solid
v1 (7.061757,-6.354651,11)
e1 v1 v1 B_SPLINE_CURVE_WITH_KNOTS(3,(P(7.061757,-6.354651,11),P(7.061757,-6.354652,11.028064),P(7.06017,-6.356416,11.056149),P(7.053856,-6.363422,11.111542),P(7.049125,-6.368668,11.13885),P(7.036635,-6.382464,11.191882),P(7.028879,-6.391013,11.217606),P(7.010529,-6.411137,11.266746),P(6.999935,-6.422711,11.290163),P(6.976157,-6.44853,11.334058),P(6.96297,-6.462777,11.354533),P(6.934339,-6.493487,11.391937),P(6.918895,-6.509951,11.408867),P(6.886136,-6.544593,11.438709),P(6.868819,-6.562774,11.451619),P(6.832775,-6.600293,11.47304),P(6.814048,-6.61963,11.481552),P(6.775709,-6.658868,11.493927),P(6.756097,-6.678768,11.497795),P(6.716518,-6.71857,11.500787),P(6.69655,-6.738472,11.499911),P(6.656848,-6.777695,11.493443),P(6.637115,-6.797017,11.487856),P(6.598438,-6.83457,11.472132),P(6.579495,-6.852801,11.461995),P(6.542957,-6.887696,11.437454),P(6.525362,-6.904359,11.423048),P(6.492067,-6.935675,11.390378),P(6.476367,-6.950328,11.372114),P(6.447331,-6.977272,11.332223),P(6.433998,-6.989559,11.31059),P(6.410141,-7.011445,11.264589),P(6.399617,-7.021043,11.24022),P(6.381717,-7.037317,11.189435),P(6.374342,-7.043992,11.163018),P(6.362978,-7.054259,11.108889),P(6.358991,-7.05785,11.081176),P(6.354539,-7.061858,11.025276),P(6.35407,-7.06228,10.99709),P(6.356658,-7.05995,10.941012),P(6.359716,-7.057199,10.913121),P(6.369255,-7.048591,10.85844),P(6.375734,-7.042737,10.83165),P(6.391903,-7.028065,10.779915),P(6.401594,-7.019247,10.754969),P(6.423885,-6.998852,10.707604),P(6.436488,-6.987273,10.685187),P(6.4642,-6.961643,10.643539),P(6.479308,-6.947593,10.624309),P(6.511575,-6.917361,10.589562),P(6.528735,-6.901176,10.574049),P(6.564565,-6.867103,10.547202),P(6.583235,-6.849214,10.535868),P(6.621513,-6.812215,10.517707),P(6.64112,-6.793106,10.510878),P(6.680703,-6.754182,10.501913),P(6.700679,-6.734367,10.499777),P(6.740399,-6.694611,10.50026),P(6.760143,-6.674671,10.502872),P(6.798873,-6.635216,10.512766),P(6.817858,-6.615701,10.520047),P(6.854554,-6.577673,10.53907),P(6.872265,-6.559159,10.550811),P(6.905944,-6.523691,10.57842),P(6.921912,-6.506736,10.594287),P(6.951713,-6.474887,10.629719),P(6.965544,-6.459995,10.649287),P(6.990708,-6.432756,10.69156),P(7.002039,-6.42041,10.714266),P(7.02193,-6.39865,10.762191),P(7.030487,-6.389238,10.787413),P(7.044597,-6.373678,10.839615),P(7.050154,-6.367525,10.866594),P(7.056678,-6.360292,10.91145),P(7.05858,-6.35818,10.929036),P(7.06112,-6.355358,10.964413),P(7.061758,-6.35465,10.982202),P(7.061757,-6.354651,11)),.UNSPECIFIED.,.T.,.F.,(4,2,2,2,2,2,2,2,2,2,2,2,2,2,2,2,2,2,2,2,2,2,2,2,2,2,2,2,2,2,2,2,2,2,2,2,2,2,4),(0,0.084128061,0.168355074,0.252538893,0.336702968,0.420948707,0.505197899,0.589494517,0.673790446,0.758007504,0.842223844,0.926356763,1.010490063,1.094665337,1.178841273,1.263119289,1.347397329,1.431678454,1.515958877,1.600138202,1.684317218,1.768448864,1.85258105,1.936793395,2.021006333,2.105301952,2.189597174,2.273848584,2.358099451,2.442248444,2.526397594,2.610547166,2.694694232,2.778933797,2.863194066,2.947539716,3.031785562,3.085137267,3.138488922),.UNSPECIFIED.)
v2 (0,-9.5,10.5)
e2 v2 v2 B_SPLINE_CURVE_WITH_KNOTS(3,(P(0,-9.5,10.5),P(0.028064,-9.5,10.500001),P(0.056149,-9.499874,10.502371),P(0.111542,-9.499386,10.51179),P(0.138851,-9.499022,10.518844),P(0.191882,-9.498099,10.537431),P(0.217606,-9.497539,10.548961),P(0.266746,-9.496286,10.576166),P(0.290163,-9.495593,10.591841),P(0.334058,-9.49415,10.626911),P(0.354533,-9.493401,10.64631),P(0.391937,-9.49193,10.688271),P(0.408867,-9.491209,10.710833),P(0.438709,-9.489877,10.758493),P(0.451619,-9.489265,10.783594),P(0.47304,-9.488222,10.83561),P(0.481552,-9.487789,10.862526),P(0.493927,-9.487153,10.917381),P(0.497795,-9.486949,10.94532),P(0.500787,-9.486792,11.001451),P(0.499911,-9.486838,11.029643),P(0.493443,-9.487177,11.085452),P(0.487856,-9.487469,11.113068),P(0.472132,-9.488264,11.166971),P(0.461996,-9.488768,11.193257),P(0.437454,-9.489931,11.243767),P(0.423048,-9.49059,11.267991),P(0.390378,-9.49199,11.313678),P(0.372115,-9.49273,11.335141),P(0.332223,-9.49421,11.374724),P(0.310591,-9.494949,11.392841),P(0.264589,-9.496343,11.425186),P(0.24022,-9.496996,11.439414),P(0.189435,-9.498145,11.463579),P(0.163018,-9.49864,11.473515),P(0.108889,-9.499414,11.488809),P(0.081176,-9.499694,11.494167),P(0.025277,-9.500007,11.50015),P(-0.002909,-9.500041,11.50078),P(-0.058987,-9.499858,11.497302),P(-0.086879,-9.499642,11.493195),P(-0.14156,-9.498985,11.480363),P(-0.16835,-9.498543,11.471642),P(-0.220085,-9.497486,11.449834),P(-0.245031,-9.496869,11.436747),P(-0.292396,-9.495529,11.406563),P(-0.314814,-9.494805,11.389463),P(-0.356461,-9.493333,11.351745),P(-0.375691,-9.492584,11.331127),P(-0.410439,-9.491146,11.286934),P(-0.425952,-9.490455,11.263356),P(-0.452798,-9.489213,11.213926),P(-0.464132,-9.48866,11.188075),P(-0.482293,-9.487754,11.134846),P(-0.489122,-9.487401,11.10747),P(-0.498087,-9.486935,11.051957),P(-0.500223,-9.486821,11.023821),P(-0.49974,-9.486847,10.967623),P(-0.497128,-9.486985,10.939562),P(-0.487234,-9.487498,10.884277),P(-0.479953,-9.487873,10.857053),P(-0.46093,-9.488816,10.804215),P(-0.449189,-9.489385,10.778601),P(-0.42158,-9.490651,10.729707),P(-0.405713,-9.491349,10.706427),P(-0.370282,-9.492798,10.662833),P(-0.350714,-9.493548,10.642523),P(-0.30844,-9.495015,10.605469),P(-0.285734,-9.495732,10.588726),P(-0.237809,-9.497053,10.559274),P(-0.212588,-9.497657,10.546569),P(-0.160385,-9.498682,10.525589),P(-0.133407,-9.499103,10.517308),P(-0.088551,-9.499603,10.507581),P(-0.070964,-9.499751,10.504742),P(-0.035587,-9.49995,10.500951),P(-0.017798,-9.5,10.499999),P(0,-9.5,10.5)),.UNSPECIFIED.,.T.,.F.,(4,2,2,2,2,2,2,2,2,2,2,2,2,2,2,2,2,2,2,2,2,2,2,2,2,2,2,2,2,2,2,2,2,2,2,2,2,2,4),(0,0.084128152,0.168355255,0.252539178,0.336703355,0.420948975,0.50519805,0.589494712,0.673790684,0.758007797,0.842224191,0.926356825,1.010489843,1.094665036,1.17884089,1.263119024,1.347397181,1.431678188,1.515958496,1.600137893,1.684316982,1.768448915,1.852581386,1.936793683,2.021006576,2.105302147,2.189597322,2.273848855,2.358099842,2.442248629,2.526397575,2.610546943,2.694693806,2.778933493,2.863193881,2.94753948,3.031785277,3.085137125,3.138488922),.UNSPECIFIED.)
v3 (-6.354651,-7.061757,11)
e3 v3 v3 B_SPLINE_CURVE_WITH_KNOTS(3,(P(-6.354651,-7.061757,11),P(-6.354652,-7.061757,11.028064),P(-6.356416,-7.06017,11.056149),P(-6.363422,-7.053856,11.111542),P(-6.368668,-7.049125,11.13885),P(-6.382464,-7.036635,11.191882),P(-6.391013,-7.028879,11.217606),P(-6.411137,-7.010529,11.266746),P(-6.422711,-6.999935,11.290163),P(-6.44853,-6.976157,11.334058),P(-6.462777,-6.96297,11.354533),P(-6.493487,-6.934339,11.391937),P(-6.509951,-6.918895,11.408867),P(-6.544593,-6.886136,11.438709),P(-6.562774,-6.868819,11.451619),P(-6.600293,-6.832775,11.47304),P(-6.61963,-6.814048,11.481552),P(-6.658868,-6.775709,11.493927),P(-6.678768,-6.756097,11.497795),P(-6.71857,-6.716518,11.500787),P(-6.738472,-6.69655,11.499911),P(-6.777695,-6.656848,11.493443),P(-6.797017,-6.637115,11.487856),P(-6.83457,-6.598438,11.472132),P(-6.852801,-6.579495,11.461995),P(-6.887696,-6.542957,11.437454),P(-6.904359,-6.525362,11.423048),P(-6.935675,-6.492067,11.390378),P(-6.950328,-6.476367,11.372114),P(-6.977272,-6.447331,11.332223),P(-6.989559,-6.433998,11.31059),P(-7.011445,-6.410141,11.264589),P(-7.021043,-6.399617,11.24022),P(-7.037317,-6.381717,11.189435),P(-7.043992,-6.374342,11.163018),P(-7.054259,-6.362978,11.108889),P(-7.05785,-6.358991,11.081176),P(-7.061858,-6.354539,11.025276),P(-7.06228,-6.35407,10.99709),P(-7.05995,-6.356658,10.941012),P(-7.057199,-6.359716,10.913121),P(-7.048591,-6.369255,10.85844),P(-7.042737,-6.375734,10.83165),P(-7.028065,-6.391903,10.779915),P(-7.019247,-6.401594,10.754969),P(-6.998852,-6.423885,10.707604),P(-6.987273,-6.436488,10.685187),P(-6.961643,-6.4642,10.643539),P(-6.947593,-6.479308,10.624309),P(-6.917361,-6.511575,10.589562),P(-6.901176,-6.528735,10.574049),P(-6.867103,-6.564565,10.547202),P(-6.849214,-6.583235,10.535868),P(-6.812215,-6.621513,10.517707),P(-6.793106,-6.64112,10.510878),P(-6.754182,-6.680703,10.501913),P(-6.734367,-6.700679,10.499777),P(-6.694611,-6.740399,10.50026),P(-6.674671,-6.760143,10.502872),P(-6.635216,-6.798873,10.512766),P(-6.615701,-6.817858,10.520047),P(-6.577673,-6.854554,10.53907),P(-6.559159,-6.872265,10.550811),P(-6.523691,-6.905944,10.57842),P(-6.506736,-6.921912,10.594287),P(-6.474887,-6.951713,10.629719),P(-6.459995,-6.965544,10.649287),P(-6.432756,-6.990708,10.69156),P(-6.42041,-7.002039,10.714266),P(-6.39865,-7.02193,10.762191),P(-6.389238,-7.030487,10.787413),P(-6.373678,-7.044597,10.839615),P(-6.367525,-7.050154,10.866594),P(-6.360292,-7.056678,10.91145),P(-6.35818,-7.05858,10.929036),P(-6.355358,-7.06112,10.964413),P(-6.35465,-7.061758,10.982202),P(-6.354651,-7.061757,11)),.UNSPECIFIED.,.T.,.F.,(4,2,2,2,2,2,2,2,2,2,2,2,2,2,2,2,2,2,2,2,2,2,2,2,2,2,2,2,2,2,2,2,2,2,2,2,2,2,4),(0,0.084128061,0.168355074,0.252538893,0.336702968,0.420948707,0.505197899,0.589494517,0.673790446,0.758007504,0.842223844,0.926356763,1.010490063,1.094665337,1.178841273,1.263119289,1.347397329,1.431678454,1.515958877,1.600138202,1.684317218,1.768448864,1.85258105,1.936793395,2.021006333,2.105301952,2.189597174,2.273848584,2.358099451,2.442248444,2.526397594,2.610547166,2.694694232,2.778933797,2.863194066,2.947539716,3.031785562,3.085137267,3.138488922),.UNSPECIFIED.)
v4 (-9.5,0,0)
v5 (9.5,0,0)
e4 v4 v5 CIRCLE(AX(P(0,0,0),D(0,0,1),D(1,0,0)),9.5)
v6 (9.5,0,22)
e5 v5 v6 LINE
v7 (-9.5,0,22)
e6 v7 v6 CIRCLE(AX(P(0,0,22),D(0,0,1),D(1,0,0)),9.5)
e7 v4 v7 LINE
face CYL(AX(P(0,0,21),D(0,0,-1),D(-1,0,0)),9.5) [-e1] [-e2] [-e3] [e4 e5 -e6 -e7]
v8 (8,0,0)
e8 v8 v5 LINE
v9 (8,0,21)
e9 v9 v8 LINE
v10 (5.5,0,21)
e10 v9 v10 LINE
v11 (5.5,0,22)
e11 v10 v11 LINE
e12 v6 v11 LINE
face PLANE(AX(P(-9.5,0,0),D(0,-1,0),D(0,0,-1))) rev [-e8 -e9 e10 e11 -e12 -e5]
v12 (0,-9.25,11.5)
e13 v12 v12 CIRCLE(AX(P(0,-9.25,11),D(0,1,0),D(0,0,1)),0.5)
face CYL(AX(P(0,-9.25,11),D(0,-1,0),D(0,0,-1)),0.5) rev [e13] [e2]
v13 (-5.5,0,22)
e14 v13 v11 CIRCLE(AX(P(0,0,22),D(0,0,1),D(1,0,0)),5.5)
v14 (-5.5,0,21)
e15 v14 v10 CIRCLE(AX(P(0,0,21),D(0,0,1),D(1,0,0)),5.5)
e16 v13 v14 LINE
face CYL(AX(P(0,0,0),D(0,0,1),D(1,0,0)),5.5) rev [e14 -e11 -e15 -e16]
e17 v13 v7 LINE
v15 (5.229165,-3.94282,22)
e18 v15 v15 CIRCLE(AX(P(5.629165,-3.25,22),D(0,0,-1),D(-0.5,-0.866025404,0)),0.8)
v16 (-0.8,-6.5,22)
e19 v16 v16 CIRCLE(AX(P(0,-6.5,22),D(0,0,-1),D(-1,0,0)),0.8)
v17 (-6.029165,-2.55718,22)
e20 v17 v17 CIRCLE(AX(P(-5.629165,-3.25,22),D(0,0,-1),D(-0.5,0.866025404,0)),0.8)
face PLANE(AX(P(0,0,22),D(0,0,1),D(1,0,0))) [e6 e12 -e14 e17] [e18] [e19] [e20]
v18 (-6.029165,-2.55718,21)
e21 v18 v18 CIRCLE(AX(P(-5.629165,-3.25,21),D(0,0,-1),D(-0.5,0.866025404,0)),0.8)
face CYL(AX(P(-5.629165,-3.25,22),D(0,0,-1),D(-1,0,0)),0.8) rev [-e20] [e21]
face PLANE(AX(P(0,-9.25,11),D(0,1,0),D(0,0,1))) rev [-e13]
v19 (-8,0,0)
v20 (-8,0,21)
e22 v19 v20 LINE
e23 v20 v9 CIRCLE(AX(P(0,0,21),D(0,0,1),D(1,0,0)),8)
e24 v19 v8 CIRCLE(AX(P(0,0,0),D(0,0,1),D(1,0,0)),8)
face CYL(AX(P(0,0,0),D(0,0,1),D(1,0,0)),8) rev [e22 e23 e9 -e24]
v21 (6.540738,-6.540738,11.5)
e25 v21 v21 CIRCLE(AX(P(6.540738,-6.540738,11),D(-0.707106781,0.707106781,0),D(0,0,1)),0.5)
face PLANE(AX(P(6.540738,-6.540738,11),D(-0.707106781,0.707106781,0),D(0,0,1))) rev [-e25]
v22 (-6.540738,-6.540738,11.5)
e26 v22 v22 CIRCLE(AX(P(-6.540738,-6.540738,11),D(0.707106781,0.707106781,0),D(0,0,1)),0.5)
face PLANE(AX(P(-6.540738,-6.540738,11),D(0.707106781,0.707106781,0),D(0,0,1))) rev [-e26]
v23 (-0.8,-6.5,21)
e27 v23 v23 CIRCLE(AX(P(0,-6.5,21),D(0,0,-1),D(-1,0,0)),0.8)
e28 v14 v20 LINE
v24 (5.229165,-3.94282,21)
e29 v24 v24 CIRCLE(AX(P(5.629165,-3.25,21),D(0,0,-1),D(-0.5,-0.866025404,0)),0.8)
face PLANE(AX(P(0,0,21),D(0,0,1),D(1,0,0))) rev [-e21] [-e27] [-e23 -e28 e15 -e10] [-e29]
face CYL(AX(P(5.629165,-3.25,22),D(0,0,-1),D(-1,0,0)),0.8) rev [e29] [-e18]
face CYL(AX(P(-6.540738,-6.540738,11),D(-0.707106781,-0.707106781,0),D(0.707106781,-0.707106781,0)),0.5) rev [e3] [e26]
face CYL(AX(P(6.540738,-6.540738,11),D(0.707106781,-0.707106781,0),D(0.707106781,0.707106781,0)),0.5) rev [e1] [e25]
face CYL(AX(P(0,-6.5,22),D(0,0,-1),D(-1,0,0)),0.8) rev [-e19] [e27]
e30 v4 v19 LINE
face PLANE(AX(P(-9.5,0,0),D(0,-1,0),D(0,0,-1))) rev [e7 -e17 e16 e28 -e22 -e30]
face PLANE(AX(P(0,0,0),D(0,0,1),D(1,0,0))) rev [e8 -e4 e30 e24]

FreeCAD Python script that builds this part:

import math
import FreeCAD as App
import Part
import Sketcher


def add_polygon(sketch, points):
    """Adds a closed chain of lines whose ends are joined by coincident constraints."""
    first, n = sketch.GeometryCount, len(points)
    for a, b in zip(points, points[1:] + points[:1]):
        sketch.addGeometry(Part.LineSegment(App.Vector(*a, 0), App.Vector(*b, 0)), False)
    for i in range(n):
        sketch.addConstraint(Sketcher.Constraint("Coincident", first + i, 2, first + (i + 1) % n, 1))

doc = App.newDocument("Part")
params = doc.addObject("Spreadsheet::Sheet", "Params")
for row, (alias, value) in enumerate([
    ("sketch1_diameter", "19 mm"),
    ("pad1_length", "21 mm"),
    ("sketch2_diameter", "16 mm"),
    ("sketch3_width", "19 mm"),
    ("sketch3_height", "9.5 mm"),
    ("sketch4_radius", "9.5 mm"),
    ("pad2_length", "1 mm"),
    ("sketch5_diameter", "1 mm"),
    ("pocket3_length", "0.5 mm"),
    ("sketch6_diameter", "11 mm"),
    ("sketch7_diameter", "1.6 mm"),
], start=1):
    params.set(f"A{row}", alias)
    params.set(f"B{row}", "=" + value)
    params.setAlias(f"B{row}", alias)

body = doc.addObject("PartDesign::Body", "Body")

sketch1 = body.newObject("Sketcher::SketchObject", "Sketch")
sketch1.AttachmentSupport = (doc.getObject("XY_Plane"), [""])
sketch1.MapMode = "FlatFace"
sketch1.addGeometry(Part.Circle(App.Vector(0, 0, 0), App.Vector(0, 0, 1), 10), False)
sketch1.addConstraint(Sketcher.Constraint("Coincident", 0, 3, -1, 1))
sketch1.addConstraint(Sketcher.Constraint("Diameter", 0, 19.0))
sketch1.setExpression("Constraints[1]", "Params.sketch1_diameter")
pad1 = body.newObject("PartDesign::Pad", "Pad")
pad1.Profile = sketch1
pad1.setExpression("Length", "Params.pad1_length")

sketch2 = body.newObject("Sketcher::SketchObject", "Sketch001")
sketch2.AttachmentSupport = (doc.getObject("XY_Plane"), [""])
sketch2.MapMode = "FlatFace"
sketch2.AttachmentOffset = App.Placement(App.Vector(0, 0, 21), App.Rotation())
sketch2.addGeometry(Part.Circle(App.Vector(0, 0, 0), App.Vector(0, 0, 1), 8), False)
sketch2.addConstraint(Sketcher.Constraint("Coincident", 0, 3, -1, 1))
sketch2.addConstraint(Sketcher.Constraint("Diameter", 0, 16.0))
sketch2.setExpression("Constraints[1]", "Params.sketch2_diameter")
pocket1 = body.newObject("PartDesign::Pocket", "Pocket")
pocket1.Profile = sketch2
pocket1.Type = "ThroughAll"

sketch3 = body.newObject("Sketcher::SketchObject", "Sketch002")
sketch3.AttachmentSupport = (doc.getObject("XY_Plane"), [""])
sketch3.MapMode = "FlatFace"
sketch3.AttachmentOffset = App.Placement(App.Vector(0, 0, 21), App.Rotation())
add_polygon(sketch3, [(-10, 10), (-10, 0), (10, 0), (10, 10)])
sketch3.addConstraint(Sketcher.Constraint("Vertical", 0))
sketch3.addConstraint(Sketcher.Constraint("Horizontal", 1))
sketch3.addConstraint(Sketcher.Constraint("Vertical", 2))
sketch3.addConstraint(Sketcher.Constraint("Horizontal", 3))
sketch3.addConstraint(Sketcher.Constraint("Symmetric", 0, 2, 1, 2, -1, 1))
sketch3.addConstraint(Sketcher.Constraint("DistanceX", 1, 1, 1, 2, 19.0))
sketch3.addConstraint(Sketcher.Constraint("DistanceY", 0, 2, 0, 1, 9.5))
sketch3.setExpression("Constraints[9]", "Params.sketch3_width")
sketch3.setExpression("Constraints[10]", "Params.sketch3_height")
pocket2 = body.newObject("PartDesign::Pocket", "Pocket001")
pocket2.Profile = sketch3
pocket2.Type = "ThroughAll"

sketch4 = body.newObject("Sketcher::SketchObject", "Sketch003")
sketch4.AttachmentSupport = (doc.getObject("XY_Plane"), [""])
sketch4.MapMode = "FlatFace"
sketch4.AttachmentOffset = App.Placement(App.Vector(0, 0, 21), App.Rotation())
sketch4.addGeometry(Part.ArcOfCircle(Part.Circle(App.Vector(0, 0, 0), App.Vector(0, 0, 1), 10), math.radians(180), math.radians(360)), False)
sketch4.addGeometry(Part.LineSegment(App.Vector(10, 0, 0), App.Vector(-10, 0, 0)), False)
sketch4.addConstraint(Sketcher.Constraint("Coincident", 0, 1, 1, 2))
sketch4.addConstraint(Sketcher.Constraint("Coincident", 1, 1, 0, 2))
sketch4.addConstraint(Sketcher.Constraint("Horizontal", 1))
sketch4.addConstraint(Sketcher.Constraint("Coincident", 0, 3, -1, 1))
sketch4.addConstraint(Sketcher.Constraint("PointOnObject", 0, 1, -1))
sketch4.addConstraint(Sketcher.Constraint("Radius", 0, 9.5))
sketch4.setExpression("Constraints[5]", "Params.sketch4_radius")
pad2 = body.newObject("PartDesign::Pad", "Pad001")
pad2.Profile = sketch4
pad2.setExpression("Length", "Params.pad2_length")

sketch5 = body.newObject("Sketcher::SketchObject", "Sketch004")
sketch5.AttachmentSupport = (doc.getObject("XZ_Plane"), [""])
sketch5.MapMode = "FlatFace"
sketch5.AttachmentOffset = App.Placement(App.Vector(0, 0, 9.75), App.Rotation())
sketch5.addGeometry(Part.Circle(App.Vector(0, 11, 0), App.Vector(0, 0, 1), 0.5), False)
sketch5.addGeometry(Part.Circle(App.Vector(0, -4, 0), App.Vector(0, 0, 1), 0.5), False)
sketch5.addGeometry(Part.Circle(App.Vector(0, 26, 0), App.Vector(0, 0, 1), 0.5), False)
sketch5.addConstraint(Sketcher.Constraint("Equal", 0, 1))
sketch5.addConstraint(Sketcher.Constraint("Equal", 1, 2))
sketch5.addConstraint(Sketcher.Constraint("PointOnObject", 0, 3, -2))
sketch5.addConstraint(Sketcher.Constraint("PointOnObject", 1, 3, -2))
sketch5.addConstraint(Sketcher.Constraint("PointOnObject", 2, 3, -2))
sketch5.addConstraint(Sketcher.Constraint("Diameter", 0, 1.0))
sketch5.addConstraint(Sketcher.Constraint("DistanceY", -1, 1, 0, 3, 11.0))
sketch5.addConstraint(Sketcher.Constraint("DistanceY", 1, 3, -1, 1, 4.0))
sketch5.addConstraint(Sketcher.Constraint("DistanceY", -1, 1, 2, 3, 26.0))
sketch5.setExpression("Constraints[5]", "Params.sketch5_diameter")
pocket3 = body.newObject("PartDesign::Pocket", "Pocket002")
pocket3.Profile = sketch5
pocket3.setExpression("Length", "Params.pocket3_length")
doc.recompute()

polarpattern = body.newObject("PartDesign::PolarPattern", "PolarPattern")
polarpattern.Originals = [pocket3]
polarpattern.Axis = (doc.getObject("Z_Axis"), [""])
polarpattern.Angle = 45
polarpattern.Occurrences = 2
polarpattern.Reversed = True
body.Tip = polarpattern
doc.recompute()

polarpattern2 = body.newObject("PartDesign::PolarPattern", "PolarPattern001")
polarpattern2.Originals = [pocket3]
polarpattern2.Axis = (doc.getObject("Z_Axis"), [""])
polarpattern2.Angle = 45
polarpattern2.Occurrences = 2
body.Tip = polarpattern2

sketch6 = body.newObject("Sketcher::SketchObject", "Sketch005")
sketch6.AttachmentSupport = (doc.getObject("XY_Plane"), [""])
sketch6.MapMode = "FlatFace"
sketch6.AttachmentOffset = App.Placement(App.Vector(0, 0, 22), App.Rotation())
sketch6.addGeometry(Part.Circle(App.Vector(0, 0, 0), App.Vector(0, 0, 1), 6), False)
sketch6.addConstraint(Sketcher.Constraint("Coincident", 0, 3, -1, 1))
sketch6.addConstraint(Sketcher.Constraint("Diameter", 0, 11.0))
sketch6.setExpression("Constraints[1]", "Params.sketch6_diameter")
pocket4 = body.newObject("PartDesign::Pocket", "Pocket003")
pocket4.Profile = sketch6
pocket4.Type = "ThroughAll"

sketch7 = body.newObject("Sketcher::SketchObject", "Sketch006")
sketch7.AttachmentSupport = (doc.getObject("XY_Plane"), [""])
sketch7.MapMode = "FlatFace"
sketch7.AttachmentOffset = App.Placement(App.Vector(0, 0, 21), App.Rotation())
sketch7.addGeometry(Part.Circle(App.Vector(0, -6.5, 0), App.Vector(0, 0, 1), 0.8), False)
sketch7.addConstraint(Sketcher.Constraint("PointOnObject", 0, 3, -2))
sketch7.addConstraint(Sketcher.Constraint("Diameter", 0, 1.6))
sketch7.addConstraint(Sketcher.Constraint("DistanceY", 0, 3, -1, 1, 6.5))
sketch7.setExpression("Constraints[1]", "Params.sketch7_diameter")
pocket5 = body.newObject("PartDesign::Pocket", "Pocket004")
pocket5.Profile = sketch7
pocket5.Type = "ThroughAll"
pocket5.Reversed = True
doc.recompute()

polarpattern3 = body.newObject("PartDesign::PolarPattern", "PolarPattern002")
polarpattern3.Originals = [pocket5]
polarpattern3.Axis = (doc.getObject("Z_Axis"), [""])
polarpattern3.Angle = 360
polarpattern3.Occurrences = 6
body.Tip = polarpattern3

doc.recompute()
